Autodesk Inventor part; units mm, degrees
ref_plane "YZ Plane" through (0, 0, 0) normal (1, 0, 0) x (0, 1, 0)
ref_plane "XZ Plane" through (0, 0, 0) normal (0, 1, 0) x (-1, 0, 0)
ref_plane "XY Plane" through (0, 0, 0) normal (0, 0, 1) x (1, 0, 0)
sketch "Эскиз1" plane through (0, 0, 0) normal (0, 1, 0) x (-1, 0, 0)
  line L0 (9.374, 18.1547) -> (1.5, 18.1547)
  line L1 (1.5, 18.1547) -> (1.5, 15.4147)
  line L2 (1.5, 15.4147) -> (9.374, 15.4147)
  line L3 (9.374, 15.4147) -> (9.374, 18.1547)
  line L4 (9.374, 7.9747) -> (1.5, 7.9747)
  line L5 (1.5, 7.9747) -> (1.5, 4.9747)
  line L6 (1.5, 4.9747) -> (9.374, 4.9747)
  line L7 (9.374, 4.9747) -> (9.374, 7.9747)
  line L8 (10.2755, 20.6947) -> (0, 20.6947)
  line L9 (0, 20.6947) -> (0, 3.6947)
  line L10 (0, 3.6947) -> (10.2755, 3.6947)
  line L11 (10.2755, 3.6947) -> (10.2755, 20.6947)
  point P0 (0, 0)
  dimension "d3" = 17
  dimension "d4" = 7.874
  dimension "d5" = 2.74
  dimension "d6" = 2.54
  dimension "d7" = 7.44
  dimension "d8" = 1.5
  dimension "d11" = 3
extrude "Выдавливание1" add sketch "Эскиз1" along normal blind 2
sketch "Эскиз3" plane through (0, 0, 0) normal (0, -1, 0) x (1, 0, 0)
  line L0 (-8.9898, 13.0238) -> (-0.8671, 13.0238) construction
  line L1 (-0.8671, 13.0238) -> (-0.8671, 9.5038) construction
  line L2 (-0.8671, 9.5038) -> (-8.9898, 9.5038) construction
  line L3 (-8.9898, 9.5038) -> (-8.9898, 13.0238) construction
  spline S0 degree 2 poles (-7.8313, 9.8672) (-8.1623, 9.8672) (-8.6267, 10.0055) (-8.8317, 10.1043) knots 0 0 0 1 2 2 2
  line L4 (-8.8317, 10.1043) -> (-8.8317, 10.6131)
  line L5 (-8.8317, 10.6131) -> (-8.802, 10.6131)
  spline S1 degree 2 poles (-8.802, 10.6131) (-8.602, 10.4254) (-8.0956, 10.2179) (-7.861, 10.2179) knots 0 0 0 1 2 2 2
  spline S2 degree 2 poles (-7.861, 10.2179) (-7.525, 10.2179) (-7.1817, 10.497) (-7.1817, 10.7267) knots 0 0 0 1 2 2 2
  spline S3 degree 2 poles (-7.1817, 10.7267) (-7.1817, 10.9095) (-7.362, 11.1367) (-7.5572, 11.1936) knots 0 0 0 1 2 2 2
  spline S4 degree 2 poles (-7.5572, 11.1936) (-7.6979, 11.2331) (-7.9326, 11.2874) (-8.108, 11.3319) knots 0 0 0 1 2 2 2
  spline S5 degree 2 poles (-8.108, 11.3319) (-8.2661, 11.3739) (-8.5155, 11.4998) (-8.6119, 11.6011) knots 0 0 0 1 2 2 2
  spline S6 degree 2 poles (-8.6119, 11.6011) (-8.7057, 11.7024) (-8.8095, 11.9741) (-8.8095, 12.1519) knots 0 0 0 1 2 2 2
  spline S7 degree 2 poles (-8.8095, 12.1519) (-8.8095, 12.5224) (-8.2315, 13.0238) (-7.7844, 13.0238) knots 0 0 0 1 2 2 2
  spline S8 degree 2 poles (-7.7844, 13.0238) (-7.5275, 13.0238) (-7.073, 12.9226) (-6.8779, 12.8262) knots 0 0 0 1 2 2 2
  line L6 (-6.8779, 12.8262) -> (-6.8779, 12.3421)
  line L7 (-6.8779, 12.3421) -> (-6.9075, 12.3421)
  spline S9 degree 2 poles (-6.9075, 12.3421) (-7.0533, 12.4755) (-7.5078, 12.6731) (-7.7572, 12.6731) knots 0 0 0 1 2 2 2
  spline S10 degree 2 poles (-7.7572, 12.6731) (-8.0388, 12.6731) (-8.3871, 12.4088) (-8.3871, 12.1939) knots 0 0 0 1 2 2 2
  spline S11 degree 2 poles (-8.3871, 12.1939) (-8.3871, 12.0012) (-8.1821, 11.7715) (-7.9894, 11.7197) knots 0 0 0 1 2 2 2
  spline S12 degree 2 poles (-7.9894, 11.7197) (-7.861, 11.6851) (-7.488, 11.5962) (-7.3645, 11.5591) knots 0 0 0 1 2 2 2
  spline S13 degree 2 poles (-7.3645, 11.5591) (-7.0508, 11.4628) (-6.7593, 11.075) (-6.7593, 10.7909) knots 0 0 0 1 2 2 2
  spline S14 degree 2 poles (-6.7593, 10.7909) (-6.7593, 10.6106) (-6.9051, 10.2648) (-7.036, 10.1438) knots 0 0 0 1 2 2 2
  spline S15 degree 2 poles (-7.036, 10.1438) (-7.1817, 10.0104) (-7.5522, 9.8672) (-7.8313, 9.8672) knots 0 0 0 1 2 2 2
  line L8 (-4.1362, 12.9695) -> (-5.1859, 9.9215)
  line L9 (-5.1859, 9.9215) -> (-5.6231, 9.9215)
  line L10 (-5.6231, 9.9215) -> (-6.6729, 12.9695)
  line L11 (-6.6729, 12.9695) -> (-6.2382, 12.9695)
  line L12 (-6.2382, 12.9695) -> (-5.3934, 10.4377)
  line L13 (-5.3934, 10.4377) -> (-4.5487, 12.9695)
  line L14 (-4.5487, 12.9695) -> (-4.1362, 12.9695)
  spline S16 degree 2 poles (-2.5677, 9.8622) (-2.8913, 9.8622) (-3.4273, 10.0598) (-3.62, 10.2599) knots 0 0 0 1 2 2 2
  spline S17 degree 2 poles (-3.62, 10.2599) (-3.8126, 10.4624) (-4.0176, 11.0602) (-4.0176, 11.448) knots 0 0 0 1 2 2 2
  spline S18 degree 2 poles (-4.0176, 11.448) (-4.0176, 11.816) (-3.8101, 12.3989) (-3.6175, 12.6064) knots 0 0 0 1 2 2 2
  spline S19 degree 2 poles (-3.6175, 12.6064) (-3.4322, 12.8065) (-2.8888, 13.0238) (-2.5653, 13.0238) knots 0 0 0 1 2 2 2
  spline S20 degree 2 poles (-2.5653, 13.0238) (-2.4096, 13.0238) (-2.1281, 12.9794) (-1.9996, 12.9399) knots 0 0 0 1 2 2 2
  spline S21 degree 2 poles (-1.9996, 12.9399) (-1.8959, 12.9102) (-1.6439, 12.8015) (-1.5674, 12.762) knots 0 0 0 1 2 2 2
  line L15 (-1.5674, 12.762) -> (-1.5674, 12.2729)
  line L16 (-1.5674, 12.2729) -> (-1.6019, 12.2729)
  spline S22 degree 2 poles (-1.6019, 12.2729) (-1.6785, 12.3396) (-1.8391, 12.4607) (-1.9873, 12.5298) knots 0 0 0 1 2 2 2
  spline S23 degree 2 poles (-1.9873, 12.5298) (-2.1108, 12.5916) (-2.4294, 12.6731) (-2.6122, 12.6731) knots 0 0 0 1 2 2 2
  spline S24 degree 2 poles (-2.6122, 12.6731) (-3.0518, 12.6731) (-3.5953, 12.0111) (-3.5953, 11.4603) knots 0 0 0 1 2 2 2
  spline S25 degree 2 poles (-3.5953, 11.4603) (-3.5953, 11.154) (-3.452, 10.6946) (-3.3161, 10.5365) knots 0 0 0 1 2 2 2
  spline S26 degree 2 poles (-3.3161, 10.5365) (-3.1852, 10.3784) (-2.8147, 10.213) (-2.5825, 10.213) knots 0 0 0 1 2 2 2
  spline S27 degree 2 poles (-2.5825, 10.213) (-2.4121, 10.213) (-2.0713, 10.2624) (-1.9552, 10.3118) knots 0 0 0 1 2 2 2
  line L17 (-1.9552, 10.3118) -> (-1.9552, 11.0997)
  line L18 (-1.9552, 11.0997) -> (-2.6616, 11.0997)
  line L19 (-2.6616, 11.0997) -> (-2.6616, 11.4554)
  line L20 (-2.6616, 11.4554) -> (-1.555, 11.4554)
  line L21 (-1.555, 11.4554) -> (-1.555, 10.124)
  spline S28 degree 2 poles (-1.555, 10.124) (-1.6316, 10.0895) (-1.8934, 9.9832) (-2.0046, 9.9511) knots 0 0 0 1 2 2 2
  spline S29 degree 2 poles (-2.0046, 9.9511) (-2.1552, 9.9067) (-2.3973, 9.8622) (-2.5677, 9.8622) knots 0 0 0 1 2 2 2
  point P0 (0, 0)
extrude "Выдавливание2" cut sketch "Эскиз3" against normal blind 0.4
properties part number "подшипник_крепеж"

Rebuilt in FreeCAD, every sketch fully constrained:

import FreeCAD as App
import Part
import Sketcher

V = App.Vector
Q = App.Units.Quantity

doc = App.newDocument("Part")
body = doc.addObject("PartDesign::Body", "Body")

# Sketch on XZ plane
sketch1 = body.newObject("Sketcher::SketchObject", "Sketch")
sketch1.AttachmentSupport = (doc.getObject("XZ_Plane"), [""])
sketch1.MapMode = "FlatFace"
sketch1.addGeometry(Part.LineSegment(V(-10.3, 3.7, 0), V(-10.3, 20.7, 0)), False)
sketch1.addGeometry(Part.LineSegment(V(-10.3, 20.7, 0), V(0, 20.7, 0)), False)
sketch1.addGeometry(Part.LineSegment(V(0, 20.7, 0), V(0, 3.7, 0)), False)
sketch1.addGeometry(Part.LineSegment(V(0, 3.7, 0), V(-10.3, 3.7, 0)), False)
sketch1.addGeometry(Part.LineSegment(V(-1.5, 8, 0), V(-9.4, 8, 0)), False)
sketch1.addGeometry(Part.LineSegment(V(-9.4, 8, 0), V(-9.4, 5, 0)), False)
sketch1.addGeometry(Part.LineSegment(V(-9.4, 5, 0), V(-1.5, 5, 0)), False)
sketch1.addGeometry(Part.LineSegment(V(-1.5, 5, 0), V(-1.5, 8, 0)), False)
sketch1.addGeometry(Part.LineSegment(V(-1.5, 18.2, 0), V(-9.4, 18.2, 0)), False)
sketch1.addGeometry(Part.LineSegment(V(-9.4, 18.2, 0), V(-9.4, 15.4, 0)), False)
sketch1.addGeometry(Part.LineSegment(V(-9.4, 15.4, 0), V(-1.5, 15.4, 0)), False)
sketch1.addGeometry(Part.LineSegment(V(-1.5, 15.4, 0), V(-1.5, 18.2, 0)), False)
sketch1.addConstraint(Sketcher.Constraint("Coincident", 0, 2, 1, 1))
sketch1.addConstraint(Sketcher.Constraint("Coincident", 1, 2, 2, 1))
sketch1.addConstraint(Sketcher.Constraint("Coincident", 2, 2, 3, 1))
sketch1.addConstraint(Sketcher.Constraint("Coincident", 3, 2, 0, 1))
sketch1.addConstraint(Sketcher.Constraint("Coincident", 4, 2, 5, 1))
sketch1.addConstraint(Sketcher.Constraint("Coincident", 5, 2, 6, 1))
sketch1.addConstraint(Sketcher.Constraint("Coincident", 6, 2, 7, 1))
sketch1.addConstraint(Sketcher.Constraint("Coincident", 7, 2, 4, 1))
sketch1.addConstraint(Sketcher.Constraint("Coincident", 8, 2, 9, 1))
sketch1.addConstraint(Sketcher.Constraint("Coincident", 9, 2, 10, 1))
sketch1.addConstraint(Sketcher.Constraint("Coincident", 10, 2, 11, 1))
sketch1.addConstraint(Sketcher.Constraint("Coincident", 11, 2, 8, 1))
sketch1.addConstraint(Sketcher.Constraint("Vertical", 0))
sketch1.addConstraint(Sketcher.Constraint("Horizontal", 1))
sketch1.addConstraint(Sketcher.Constraint("Vertical", 2))
sketch1.addConstraint(Sketcher.Constraint("Horizontal", 3))
sketch1.addConstraint(Sketcher.Constraint("Horizontal", 4))
sketch1.addConstraint(Sketcher.Constraint("Vertical", 5))
sketch1.addConstraint(Sketcher.Constraint("Horizontal", 6))
sketch1.addConstraint(Sketcher.Constraint("Vertical", 7))
sketch1.addConstraint(Sketcher.Constraint("Horizontal", 8))
sketch1.addConstraint(Sketcher.Constraint("Vertical", 9))
sketch1.addConstraint(Sketcher.Constraint("Horizontal", 10))
sketch1.addConstraint(Sketcher.Constraint("Vertical", 11))
sketch1.addConstraint(Sketcher.Constraint("PointOnObject", 1, 2, -2))
sketch1.addConstraint(Sketcher.Constraint("Vertical", 5, 2, 8, 2))
sketch1.addConstraint(Sketcher.Constraint("Vertical", 7, 2, 10, 2))
sketch1.addConstraint(Sketcher.Constraint("DistanceY", 0, 1, 0, 2, 17.0))
sketch1.addConstraint(Sketcher.Constraint("DistanceY", 5, 2, 5, 1, 3.0))
sketch1.addConstraint(Sketcher.Constraint("DistanceY", 9, 2, 9, 1, 2.74))
sketch1.addConstraint(Sketcher.Constraint("DistanceX", 6, 2, -1, 1, 1.5))
sketch1.addConstraint(Sketcher.Constraint("DistanceX", 4, 2, 4, 1, 7.874))
sketch1.addConstraint(Sketcher.Constraint("DistanceY", 8, 2, 0, 2, 2.54))
sketch1.addConstraint(Sketcher.Constraint("DistanceY", 4, 2, 9, 2, 7.44))
sketch1.addConstraint(Sketcher.Constraint("DistanceX", 1, 1, 1, 2, 10.2755))
sketch1.addConstraint(Sketcher.Constraint("DistanceY", -1, 1, 0, 2, 20.6947))
pad1 = body.newObject("PartDesign::Pad", "Pad")
pad1.Profile = sketch1
pad1.Length = 2
pad1.Reversed = True

# Sketch on XZ plane
sketch2 = body.newObject("Sketcher::SketchObject", "Sketch001")
sketch2.AttachmentSupport = (doc.getObject("XZ_Plane"), [""])
sketch2.MapMode = "FlatFace"
sketch2.addGeometry(Part.BSplineCurve([V(-7.8313, 9.8672, 0), V(-8.1623, 9.8672, 0), V(-8.6267, 10.0055, 0), V(-8.8317, 10.1043, 0)], [3, 1, 3], [0, 1, 2], False, 2, [1, 1, 1, 1], False), False)
sketch2.addGeometry(Part.BSplineCurve([V(-7.036, 10.1438, 0), V(-7.1817, 10.0104, 0), V(-7.5522, 9.8672, 0), V(-7.8313, 9.8672, 0)], [3, 1, 3], [0, 1, 2], False, 2, [1, 1, 1, 1], False), False)
sketch2.addGeometry(Part.BSplineCurve([V(-6.7593, 10.7909, 0), V(-6.7593, 10.6106, 0), V(-6.9051, 10.2648, 0), V(-7.036, 10.1438, 0)], [3, 1, 3], [0, 1, 2], False, 2, [1, 1, 1, 1], False), False)
sketch2.addGeometry(Part.BSplineCurve([V(-7.3645, 11.5591, 0), V(-7.0508, 11.4628, 0), V(-6.7593, 11.075, 0), V(-6.7593, 10.7909, 0)], [3, 1, 3], [0, 1, 2], False, 2, [1, 1, 1, 1], False), False)
sketch2.addGeometry(Part.BSplineCurve([V(-7.9894, 11.7197, 0), V(-7.861, 11.6851, 0), V(-7.488, 11.5962, 0), V(-7.3645, 11.5591, 0)], [3, 1, 3], [0, 1, 2], False, 2, [1, 1, 1, 1], False), False)
sketch2.addGeometry(Part.BSplineCurve([V(-8.3871, 12.1939, 0), V(-8.3871, 12.0012, 0), V(-8.1821, 11.7715, 0), V(-7.9894, 11.7197, 0)], [3, 1, 3], [0, 1, 2], False, 2, [1, 1, 1, 1], False), False)
sketch2.addGeometry(Part.BSplineCurve([V(-7.7572, 12.6731, 0), V(-8.0388, 12.6731, 0), V(-8.3871, 12.4088, 0), V(-8.3871, 12.1939, 0)], [3, 1, 3], [0, 1, 2], False, 2, [1, 1, 1, 1], False), False)
sketch2.addGeometry(Part.BSplineCurve([V(-6.9075, 12.3421, 0), V(-7.0533, 12.4755, 0), V(-7.5078, 12.6731, 0), V(-7.7572, 12.6731, 0)], [3, 1, 3], [0, 1, 2], False, 2, [1, 1, 1, 1], False), False)
sketch2.addGeometry(Part.LineSegment(V(-6.9075, 12.3421, 0), V(-6.8779, 12.3421, 0)), False)
sketch2.addGeometry(Part.LineSegment(V(-6.8779, 12.3421, 0), V(-6.8779, 12.8262, 0)), False)
sketch2.addGeometry(Part.BSplineCurve([V(-7.7844, 13.0238, 0), V(-7.5275, 13.0238, 0), V(-7.073, 12.9226, 0), V(-6.8779, 12.8262, 0)], [3, 1, 3], [0, 1, 2], False, 2, [1, 1, 1, 1], False), False)
sketch2.addGeometry(Part.BSplineCurve([V(-8.8095, 12.1519, 0), V(-8.8095, 12.5224, 0), V(-8.2315, 13.0238, 0), V(-7.7844, 13.0238, 0)], [3, 1, 3], [0, 1, 2], False, 2, [1, 1, 1, 1], False), False)
sketch2.addGeometry(Part.BSplineCurve([V(-8.6119, 11.6011, 0), V(-8.7057, 11.7024, 0), V(-8.8095, 11.9741, 0), V(-8.8095, 12.1519, 0)], [3, 1, 3], [0, 1, 2], False, 2, [1, 1, 1, 1], False), False)
sketch2.addGeometry(Part.BSplineCurve([V(-8.108, 11.3319, 0), V(-8.2661, 11.3739, 0), V(-8.5155, 11.4998, 0), V(-8.6119, 11.6011, 0)], [3, 1, 3], [0, 1, 2], False, 2, [1, 1, 1, 1], False), False)
sketch2.addGeometry(Part.BSplineCurve([V(-7.5572, 11.1936, 0), V(-7.6979, 11.2331, 0), V(-7.9326, 11.2874, 0), V(-8.108, 11.3319, 0)], [3, 1, 3], [0, 1, 2], False, 2, [1, 1, 1, 1], False), False)
sketch2.addGeometry(Part.BSplineCurve([V(-7.1817, 10.7267, 0), V(-7.1817, 10.9095, 0), V(-7.362, 11.1367, 0), V(-7.5572, 11.1936, 0)], [3, 1, 3], [0, 1, 2], False, 2, [1, 1, 1, 1], False), False)
sketch2.addGeometry(Part.BSplineCurve([V(-7.861, 10.2179, 0), V(-7.525, 10.2179, 0), V(-7.1817, 10.497, 0), V(-7.1817, 10.7267, 0)], [3, 1, 3], [0, 1, 2], False, 2, [1, 1, 1, 1], False), False)
sketch2.addGeometry(Part.BSplineCurve([V(-8.802, 10.6131, 0), V(-8.602, 10.4254, 0), V(-8.0956, 10.2179, 0), V(-7.861, 10.2179, 0)], [3, 1, 3], [0, 1, 2], False, 2, [1, 1, 1, 1], False), False)
sketch2.addGeometry(Part.LineSegment(V(-8.802, 10.6131, 0), V(-8.8317, 10.6131, 0)), False)
sketch2.addGeometry(Part.LineSegment(V(-8.8317, 10.6131, 0), V(-8.8317, 10.1043, 0)), False)
sketch2.addGeometry(Part.LineSegment(V(-5.1859, 9.9215, 0), V(-4.1362, 12.9695, 0)), False)
sketch2.addGeometry(Part.LineSegment(V(-4.1362, 12.9695, 0), V(-4.5487, 12.9695, 0)), False)
sketch2.addGeometry(Part.LineSegment(V(-4.5487, 12.9695, 0), V(-5.3934, 10.4377, 0)), False)
sketch2.addGeometry(Part.LineSegment(V(-5.3934, 10.4377, 0), V(-6.2382, 12.9695, 0)), False)
sketch2.addGeometry(Part.LineSegment(V(-6.2382, 12.9695, 0), V(-6.6729, 12.9695, 0)), False)
sketch2.addGeometry(Part.LineSegment(V(-6.6729, 12.9695, 0), V(-5.6231, 9.9215, 0)), False)
sketch2.addGeometry(Part.LineSegment(V(-5.6231, 9.9215, 0), V(-5.1859, 9.9215, 0)), False)
sketch2.addGeometry(Part.BSplineCurve([V(-2.5677, 9.8622, 0), V(-2.8913, 9.8622, 0), V(-3.4273, 10.0598, 0), V(-3.62, 10.2599, 0)], [3, 1, 3], [0, 1, 2], False, 2, [1, 1, 1, 1], False), False)
sketch2.addGeometry(Part.BSplineCurve([V(-2.0046, 9.9511, 0), V(-2.1552, 9.9067, 0), V(-2.3973, 9.8622, 0), V(-2.5677, 9.8622, 0)], [3, 1, 3], [0, 1, 2], False, 2, [1, 1, 1, 1], False), False)
sketch2.addGeometry(Part.BSplineCurve([V(-1.555, 10.124, 0), V(-1.6316, 10.0895, 0), V(-1.8934, 9.9832, 0), V(-2.0046, 9.9511, 0)], [3, 1, 3], [0, 1, 2], False, 2, [1, 1, 1, 1], False), False)
sketch2.addGeometry(Part.LineSegment(V(-1.555, 10.124, 0), V(-1.555, 11.4554, 0)), False)
sketch2.addGeometry(Part.LineSegment(V(-1.555, 11.4554, 0), V(-2.6616, 11.4554, 0)), False)
sketch2.addGeometry(Part.LineSegment(V(-2.6616, 11.4554, 0), V(-2.6616, 11.0997, 0)), False)
sketch2.addGeometry(Part.LineSegment(V(-2.6616, 11.0997, 0), V(-1.9552, 11.0997, 0)), False)
sketch2.addGeometry(Part.LineSegment(V(-1.9552, 11.0997, 0), V(-1.9552, 10.3118, 0)), False)
sketch2.addGeometry(Part.BSplineCurve([V(-2.5825, 10.213, 0), V(-2.4121, 10.213, 0), V(-2.0713, 10.2624, 0), V(-1.9552, 10.3118, 0)], [3, 1, 3], [0, 1, 2], False, 2, [1, 1, 1, 1], False), False)
sketch2.addGeometry(Part.BSplineCurve([V(-3.3161, 10.5365, 0), V(-3.1852, 10.3784, 0), V(-2.8147, 10.213, 0), V(-2.5825, 10.213, 0)], [3, 1, 3], [0, 1, 2], False, 2, [1, 1, 1, 1], False), False)
sketch2.addGeometry(Part.BSplineCurve([V(-3.5953, 11.4603, 0), V(-3.5953, 11.154, 0), V(-3.452, 10.6946, 0), V(-3.3161, 10.5365, 0)], [3, 1, 3], [0, 1, 2], False, 2, [1, 1, 1, 1], False), False)
sketch2.addGeometry(Part.BSplineCurve([V(-2.6122, 12.6731, 0), V(-3.0518, 12.6731, 0), V(-3.5953, 12.0111, 0), V(-3.5953, 11.4603, 0)], [3, 1, 3], [0, 1, 2], False, 2, [1, 1, 1, 1], False), False)
sketch2.addGeometry(Part.BSplineCurve([V(-1.9873, 12.5298, 0), V(-2.1108, 12.5916, 0), V(-2.4294, 12.6731, 0), V(-2.6122, 12.6731, 0)], [3, 1, 3], [0, 1, 2], False, 2, [1, 1, 1, 1], False), False)
sketch2.addGeometry(Part.BSplineCurve([V(-1.6019, 12.2729, 0), V(-1.6785, 12.3396, 0), V(-1.8391, 12.4607, 0), V(-1.9873, 12.5298, 0)], [3, 1, 3], [0, 1, 2], False, 2, [1, 1, 1, 1], False), False)
sketch2.addGeometry(Part.LineSegment(V(-1.6019, 12.2729, 0), V(-1.5674, 12.2729, 0)), False)
sketch2.addGeometry(Part.LineSegment(V(-1.5674, 12.2729, 0), V(-1.5674, 12.762, 0)), False)
sketch2.addGeometry(Part.BSplineCurve([V(-1.9996, 12.9399, 0), V(-1.8959, 12.9102, 0), V(-1.6439, 12.8015, 0), V(-1.5674, 12.762, 0)], [3, 1, 3], [0, 1, 2], False, 2, [1, 1, 1, 1], False), False)
sketch2.addGeometry(Part.BSplineCurve([V(-2.5653, 13.0238, 0), V(-2.4096, 13.0238, 0), V(-2.1281, 12.9794, 0), V(-1.9996, 12.9399, 0)], [3, 1, 3], [0, 1, 2], False, 2, [1, 1, 1, 1], False), False)
sketch2.addGeometry(Part.BSplineCurve([V(-3.6175, 12.6064, 0), V(-3.4322, 12.8065, 0), V(-2.8888, 13.0238, 0), V(-2.5653, 13.0238, 0)], [3, 1, 3], [0, 1, 2], False, 2, [1, 1, 1, 1], False), False)
sketch2.addGeometry(Part.BSplineCurve([V(-4.0176, 11.448, 0), V(-4.0176, 11.816, 0), V(-3.8101, 12.3989, 0), V(-3.6175, 12.6064, 0)], [3, 1, 3], [0, 1, 2], False, 2, [1, 1, 1, 1], False), False)
sketch2.addGeometry(Part.BSplineCurve([V(-3.62, 10.2599, 0), V(-3.8126, 10.4624, 0), V(-4.0176, 11.0602, 0), V(-4.0176, 11.448, 0)], [3, 1, 3], [0, 1, 2], False, 2, [1, 1, 1, 1], False), False)
sketch2.addConstraint(Sketcher.Constraint("Block", 0))
sketch2.addConstraint(Sketcher.Constraint("Block", 1))
sketch2.addConstraint(Sketcher.Constraint("Block", 2))
sketch2.addConstraint(Sketcher.Constraint("Block", 3))
sketch2.addConstraint(Sketcher.Constraint("Block", 4))
sketch2.addConstraint(Sketcher.Constraint("Block", 5))
sketch2.addConstraint(Sketcher.Constraint("Block", 6))
sketch2.addConstraint(Sketcher.Constraint("Block", 7))
sketch2.addConstraint(Sketcher.Constraint("Block", 10))
sketch2.addConstraint(Sketcher.Constraint("Block", 11))
sketch2.addConstraint(Sketcher.Constraint("Block", 12))
sketch2.addConstraint(Sketcher.Constraint("Block", 13))
sketch2.addConstraint(Sketcher.Constraint("Block", 14))
sketch2.addConstraint(Sketcher.Constraint("Block", 15))
sketch2.addConstraint(Sketcher.Constraint("Block", 16))
sketch2.addConstraint(Sketcher.Constraint("Block", 17))
sketch2.addConstraint(Sketcher.Constraint("Block", 27))
sketch2.addConstraint(Sketcher.Constraint("Block", 28))
sketch2.addConstraint(Sketcher.Constraint("Block", 29))
sketch2.addConstraint(Sketcher.Constraint("Block", 35))
sketch2.addConstraint(Sketcher.Constraint("Block", 36))
sketch2.addConstraint(Sketcher.Constraint("Block", 37))
sketch2.addConstraint(Sketcher.Constraint("Block", 38))
sketch2.addConstraint(Sketcher.Constraint("Block", 39))
sketch2.addConstraint(Sketcher.Constraint("Block", 40))
sketch2.addConstraint(Sketcher.Constraint("Block", 43))
sketch2.addConstraint(Sketcher.Constraint("Block", 44))
sketch2.addConstraint(Sketcher.Constraint("Block", 45))
sketch2.addConstraint(Sketcher.Constraint("Block", 46))
sketch2.addConstraint(Sketcher.Constraint("Block", 47))
sketch2.addConstraint(Sketcher.Constraint("Coincident", 7, 1, 8, 1))
sketch2.addConstraint(Sketcher.Constraint("Coincident", 8, 2, 9, 1))
sketch2.addConstraint(Sketcher.Constraint("Coincident", 9, 2, 10, 2))
sketch2.addConstraint(Sketcher.Constraint("Coincident", 17, 1, 18, 1))
sketch2.addConstraint(Sketcher.Constraint("Coincident", 18, 2, 19, 1))
sketch2.addConstraint(Sketcher.Constraint("Coincident", 19, 2, 0, 2))
sketch2.addConstraint(Sketcher.Constraint("Coincident", 20, 2, 21, 1))
sketch2.addConstraint(Sketcher.Constraint("Coincident", 21, 2, 22, 1))
sketch2.addConstraint(Sketcher.Constraint("Coincident", 22, 2, 23, 1))
sketch2.addConstraint(Sketcher.Constraint("Coincident", 23, 2, 24, 1))
sketch2.addConstraint(Sketcher.Constraint("Coincident", 24, 2, 25, 1))
sketch2.addConstraint(Sketcher.Constraint("Coincident", 25, 2, 26, 1))
sketch2.addConstraint(Sketcher.Constraint("Coincident", 26, 2, 20, 1))
sketch2.addConstraint(Sketcher.Constraint("Coincident", 29, 1, 30, 1))
sketch2.addConstraint(Sketcher.Constraint("Coincident", 30, 2, 31, 1))
sketch2.addConstraint(Sketcher.Constraint("Coincident", 31, 2, 32, 1))
sketch2.addConstraint(Sketcher.Constraint("Coincident", 32, 2, 33, 1))
sketch2.addConstraint(Sketcher.Constraint("Coincident", 33, 2, 34, 1))
sketch2.addConstraint(Sketcher.Constraint("Coincident", 34, 2, 35, 2))
sketch2.addConstraint(Sketcher.Constraint("Coincident", 40, 1, 41, 1))
sketch2.addConstraint(Sketcher.Constraint("Coincident", 41, 2, 42, 1))
sketch2.addConstraint(Sketcher.Constraint("Coincident", 42, 2, 43, 2))
sketch2.addConstraint(Sketcher.Constraint("Horizontal", 8))
sketch2.addConstraint(Sketcher.Constraint("Vertical", 9))
sketch2.addConstraint(Sketcher.Constraint("Horizontal", 18))
sketch2.addConstraint(Sketcher.Constraint("Vertical", 19))
sketch2.addConstraint(Sketcher.Constraint("Horizontal", 21))
sketch2.addConstraint(Sketcher.Constraint("Horizontal", 24))
sketch2.addConstraint(Sketcher.Constraint("Horizontal", 26))
sketch2.addConstraint(Sketcher.Constraint("Vertical", 30))
sketch2.addConstraint(Sketcher.Constraint("Horizontal", 31))
sketch2.addConstraint(Sketcher.Constraint("Vertical", 32))
sketch2.addConstraint(Sketcher.Constraint("Horizontal", 33))
sketch2.addConstraint(Sketcher.Constraint("Vertical", 34))
sketch2.addConstraint(Sketcher.Constraint("Horizontal", 41))
sketch2.addConstraint(Sketcher.Constraint("Vertical", 42))
sketch2.addConstraint(Sketcher.Constraint("Horizontal", 21, 2, 23, 2))
sketch2.addConstraint(Sketcher.Constraint("Equal", 22, 23))
sketch2.addConstraint(Sketcher.Constraint("Equal", 20, 25))
sketch2.addConstraint(Sketcher.Constraint("Angle", 22, Q("-108.4506 deg")))
sketch2.addConstraint(Sketcher.Constraint("DistanceY", 34, 2, 34, 1, 0.788))
sketch2.addConstraint(Sketcher.Constraint("Distance", 22, 2.669))
sketch2.addConstraint(Sketcher.Constraint("DistanceX", 21, 2, 21, 1, 0.4125))
sketch2.addConstraint(Sketcher.Constraint("DistanceX", 24, 2, 24, 1, 0.4347))
sketch2.addConstraint(Sketcher.Constraint("DistanceX", 26, 1, 26, 2, 0.4372))
sketch2.addConstraint(Sketcher.Constraint("DistanceX", 31, 2, 31, 1, 1.1066))
sketch2.addConstraint(Sketcher.Constraint("DistanceY", 30, 1, 30, 2, 1.3314))
sketch2.addConstraint(Sketcher.Constraint("DistanceX", 24, 2, -1, 1, 6.673))
sketch2.addConstraint(Sketcher.Constraint("DistanceY", 25, 2, 23, 2, 3.048))
sketch2.addConstraint(Sketcher.Constraint("DistanceY", 30, 2, 20, 2, 1.514))
pocket1 = body.newObject("PartDesign::Pocket", "Pocket")
pocket1.Profile = sketch2
pocket1.Length = 0.4

doc.recompute()
